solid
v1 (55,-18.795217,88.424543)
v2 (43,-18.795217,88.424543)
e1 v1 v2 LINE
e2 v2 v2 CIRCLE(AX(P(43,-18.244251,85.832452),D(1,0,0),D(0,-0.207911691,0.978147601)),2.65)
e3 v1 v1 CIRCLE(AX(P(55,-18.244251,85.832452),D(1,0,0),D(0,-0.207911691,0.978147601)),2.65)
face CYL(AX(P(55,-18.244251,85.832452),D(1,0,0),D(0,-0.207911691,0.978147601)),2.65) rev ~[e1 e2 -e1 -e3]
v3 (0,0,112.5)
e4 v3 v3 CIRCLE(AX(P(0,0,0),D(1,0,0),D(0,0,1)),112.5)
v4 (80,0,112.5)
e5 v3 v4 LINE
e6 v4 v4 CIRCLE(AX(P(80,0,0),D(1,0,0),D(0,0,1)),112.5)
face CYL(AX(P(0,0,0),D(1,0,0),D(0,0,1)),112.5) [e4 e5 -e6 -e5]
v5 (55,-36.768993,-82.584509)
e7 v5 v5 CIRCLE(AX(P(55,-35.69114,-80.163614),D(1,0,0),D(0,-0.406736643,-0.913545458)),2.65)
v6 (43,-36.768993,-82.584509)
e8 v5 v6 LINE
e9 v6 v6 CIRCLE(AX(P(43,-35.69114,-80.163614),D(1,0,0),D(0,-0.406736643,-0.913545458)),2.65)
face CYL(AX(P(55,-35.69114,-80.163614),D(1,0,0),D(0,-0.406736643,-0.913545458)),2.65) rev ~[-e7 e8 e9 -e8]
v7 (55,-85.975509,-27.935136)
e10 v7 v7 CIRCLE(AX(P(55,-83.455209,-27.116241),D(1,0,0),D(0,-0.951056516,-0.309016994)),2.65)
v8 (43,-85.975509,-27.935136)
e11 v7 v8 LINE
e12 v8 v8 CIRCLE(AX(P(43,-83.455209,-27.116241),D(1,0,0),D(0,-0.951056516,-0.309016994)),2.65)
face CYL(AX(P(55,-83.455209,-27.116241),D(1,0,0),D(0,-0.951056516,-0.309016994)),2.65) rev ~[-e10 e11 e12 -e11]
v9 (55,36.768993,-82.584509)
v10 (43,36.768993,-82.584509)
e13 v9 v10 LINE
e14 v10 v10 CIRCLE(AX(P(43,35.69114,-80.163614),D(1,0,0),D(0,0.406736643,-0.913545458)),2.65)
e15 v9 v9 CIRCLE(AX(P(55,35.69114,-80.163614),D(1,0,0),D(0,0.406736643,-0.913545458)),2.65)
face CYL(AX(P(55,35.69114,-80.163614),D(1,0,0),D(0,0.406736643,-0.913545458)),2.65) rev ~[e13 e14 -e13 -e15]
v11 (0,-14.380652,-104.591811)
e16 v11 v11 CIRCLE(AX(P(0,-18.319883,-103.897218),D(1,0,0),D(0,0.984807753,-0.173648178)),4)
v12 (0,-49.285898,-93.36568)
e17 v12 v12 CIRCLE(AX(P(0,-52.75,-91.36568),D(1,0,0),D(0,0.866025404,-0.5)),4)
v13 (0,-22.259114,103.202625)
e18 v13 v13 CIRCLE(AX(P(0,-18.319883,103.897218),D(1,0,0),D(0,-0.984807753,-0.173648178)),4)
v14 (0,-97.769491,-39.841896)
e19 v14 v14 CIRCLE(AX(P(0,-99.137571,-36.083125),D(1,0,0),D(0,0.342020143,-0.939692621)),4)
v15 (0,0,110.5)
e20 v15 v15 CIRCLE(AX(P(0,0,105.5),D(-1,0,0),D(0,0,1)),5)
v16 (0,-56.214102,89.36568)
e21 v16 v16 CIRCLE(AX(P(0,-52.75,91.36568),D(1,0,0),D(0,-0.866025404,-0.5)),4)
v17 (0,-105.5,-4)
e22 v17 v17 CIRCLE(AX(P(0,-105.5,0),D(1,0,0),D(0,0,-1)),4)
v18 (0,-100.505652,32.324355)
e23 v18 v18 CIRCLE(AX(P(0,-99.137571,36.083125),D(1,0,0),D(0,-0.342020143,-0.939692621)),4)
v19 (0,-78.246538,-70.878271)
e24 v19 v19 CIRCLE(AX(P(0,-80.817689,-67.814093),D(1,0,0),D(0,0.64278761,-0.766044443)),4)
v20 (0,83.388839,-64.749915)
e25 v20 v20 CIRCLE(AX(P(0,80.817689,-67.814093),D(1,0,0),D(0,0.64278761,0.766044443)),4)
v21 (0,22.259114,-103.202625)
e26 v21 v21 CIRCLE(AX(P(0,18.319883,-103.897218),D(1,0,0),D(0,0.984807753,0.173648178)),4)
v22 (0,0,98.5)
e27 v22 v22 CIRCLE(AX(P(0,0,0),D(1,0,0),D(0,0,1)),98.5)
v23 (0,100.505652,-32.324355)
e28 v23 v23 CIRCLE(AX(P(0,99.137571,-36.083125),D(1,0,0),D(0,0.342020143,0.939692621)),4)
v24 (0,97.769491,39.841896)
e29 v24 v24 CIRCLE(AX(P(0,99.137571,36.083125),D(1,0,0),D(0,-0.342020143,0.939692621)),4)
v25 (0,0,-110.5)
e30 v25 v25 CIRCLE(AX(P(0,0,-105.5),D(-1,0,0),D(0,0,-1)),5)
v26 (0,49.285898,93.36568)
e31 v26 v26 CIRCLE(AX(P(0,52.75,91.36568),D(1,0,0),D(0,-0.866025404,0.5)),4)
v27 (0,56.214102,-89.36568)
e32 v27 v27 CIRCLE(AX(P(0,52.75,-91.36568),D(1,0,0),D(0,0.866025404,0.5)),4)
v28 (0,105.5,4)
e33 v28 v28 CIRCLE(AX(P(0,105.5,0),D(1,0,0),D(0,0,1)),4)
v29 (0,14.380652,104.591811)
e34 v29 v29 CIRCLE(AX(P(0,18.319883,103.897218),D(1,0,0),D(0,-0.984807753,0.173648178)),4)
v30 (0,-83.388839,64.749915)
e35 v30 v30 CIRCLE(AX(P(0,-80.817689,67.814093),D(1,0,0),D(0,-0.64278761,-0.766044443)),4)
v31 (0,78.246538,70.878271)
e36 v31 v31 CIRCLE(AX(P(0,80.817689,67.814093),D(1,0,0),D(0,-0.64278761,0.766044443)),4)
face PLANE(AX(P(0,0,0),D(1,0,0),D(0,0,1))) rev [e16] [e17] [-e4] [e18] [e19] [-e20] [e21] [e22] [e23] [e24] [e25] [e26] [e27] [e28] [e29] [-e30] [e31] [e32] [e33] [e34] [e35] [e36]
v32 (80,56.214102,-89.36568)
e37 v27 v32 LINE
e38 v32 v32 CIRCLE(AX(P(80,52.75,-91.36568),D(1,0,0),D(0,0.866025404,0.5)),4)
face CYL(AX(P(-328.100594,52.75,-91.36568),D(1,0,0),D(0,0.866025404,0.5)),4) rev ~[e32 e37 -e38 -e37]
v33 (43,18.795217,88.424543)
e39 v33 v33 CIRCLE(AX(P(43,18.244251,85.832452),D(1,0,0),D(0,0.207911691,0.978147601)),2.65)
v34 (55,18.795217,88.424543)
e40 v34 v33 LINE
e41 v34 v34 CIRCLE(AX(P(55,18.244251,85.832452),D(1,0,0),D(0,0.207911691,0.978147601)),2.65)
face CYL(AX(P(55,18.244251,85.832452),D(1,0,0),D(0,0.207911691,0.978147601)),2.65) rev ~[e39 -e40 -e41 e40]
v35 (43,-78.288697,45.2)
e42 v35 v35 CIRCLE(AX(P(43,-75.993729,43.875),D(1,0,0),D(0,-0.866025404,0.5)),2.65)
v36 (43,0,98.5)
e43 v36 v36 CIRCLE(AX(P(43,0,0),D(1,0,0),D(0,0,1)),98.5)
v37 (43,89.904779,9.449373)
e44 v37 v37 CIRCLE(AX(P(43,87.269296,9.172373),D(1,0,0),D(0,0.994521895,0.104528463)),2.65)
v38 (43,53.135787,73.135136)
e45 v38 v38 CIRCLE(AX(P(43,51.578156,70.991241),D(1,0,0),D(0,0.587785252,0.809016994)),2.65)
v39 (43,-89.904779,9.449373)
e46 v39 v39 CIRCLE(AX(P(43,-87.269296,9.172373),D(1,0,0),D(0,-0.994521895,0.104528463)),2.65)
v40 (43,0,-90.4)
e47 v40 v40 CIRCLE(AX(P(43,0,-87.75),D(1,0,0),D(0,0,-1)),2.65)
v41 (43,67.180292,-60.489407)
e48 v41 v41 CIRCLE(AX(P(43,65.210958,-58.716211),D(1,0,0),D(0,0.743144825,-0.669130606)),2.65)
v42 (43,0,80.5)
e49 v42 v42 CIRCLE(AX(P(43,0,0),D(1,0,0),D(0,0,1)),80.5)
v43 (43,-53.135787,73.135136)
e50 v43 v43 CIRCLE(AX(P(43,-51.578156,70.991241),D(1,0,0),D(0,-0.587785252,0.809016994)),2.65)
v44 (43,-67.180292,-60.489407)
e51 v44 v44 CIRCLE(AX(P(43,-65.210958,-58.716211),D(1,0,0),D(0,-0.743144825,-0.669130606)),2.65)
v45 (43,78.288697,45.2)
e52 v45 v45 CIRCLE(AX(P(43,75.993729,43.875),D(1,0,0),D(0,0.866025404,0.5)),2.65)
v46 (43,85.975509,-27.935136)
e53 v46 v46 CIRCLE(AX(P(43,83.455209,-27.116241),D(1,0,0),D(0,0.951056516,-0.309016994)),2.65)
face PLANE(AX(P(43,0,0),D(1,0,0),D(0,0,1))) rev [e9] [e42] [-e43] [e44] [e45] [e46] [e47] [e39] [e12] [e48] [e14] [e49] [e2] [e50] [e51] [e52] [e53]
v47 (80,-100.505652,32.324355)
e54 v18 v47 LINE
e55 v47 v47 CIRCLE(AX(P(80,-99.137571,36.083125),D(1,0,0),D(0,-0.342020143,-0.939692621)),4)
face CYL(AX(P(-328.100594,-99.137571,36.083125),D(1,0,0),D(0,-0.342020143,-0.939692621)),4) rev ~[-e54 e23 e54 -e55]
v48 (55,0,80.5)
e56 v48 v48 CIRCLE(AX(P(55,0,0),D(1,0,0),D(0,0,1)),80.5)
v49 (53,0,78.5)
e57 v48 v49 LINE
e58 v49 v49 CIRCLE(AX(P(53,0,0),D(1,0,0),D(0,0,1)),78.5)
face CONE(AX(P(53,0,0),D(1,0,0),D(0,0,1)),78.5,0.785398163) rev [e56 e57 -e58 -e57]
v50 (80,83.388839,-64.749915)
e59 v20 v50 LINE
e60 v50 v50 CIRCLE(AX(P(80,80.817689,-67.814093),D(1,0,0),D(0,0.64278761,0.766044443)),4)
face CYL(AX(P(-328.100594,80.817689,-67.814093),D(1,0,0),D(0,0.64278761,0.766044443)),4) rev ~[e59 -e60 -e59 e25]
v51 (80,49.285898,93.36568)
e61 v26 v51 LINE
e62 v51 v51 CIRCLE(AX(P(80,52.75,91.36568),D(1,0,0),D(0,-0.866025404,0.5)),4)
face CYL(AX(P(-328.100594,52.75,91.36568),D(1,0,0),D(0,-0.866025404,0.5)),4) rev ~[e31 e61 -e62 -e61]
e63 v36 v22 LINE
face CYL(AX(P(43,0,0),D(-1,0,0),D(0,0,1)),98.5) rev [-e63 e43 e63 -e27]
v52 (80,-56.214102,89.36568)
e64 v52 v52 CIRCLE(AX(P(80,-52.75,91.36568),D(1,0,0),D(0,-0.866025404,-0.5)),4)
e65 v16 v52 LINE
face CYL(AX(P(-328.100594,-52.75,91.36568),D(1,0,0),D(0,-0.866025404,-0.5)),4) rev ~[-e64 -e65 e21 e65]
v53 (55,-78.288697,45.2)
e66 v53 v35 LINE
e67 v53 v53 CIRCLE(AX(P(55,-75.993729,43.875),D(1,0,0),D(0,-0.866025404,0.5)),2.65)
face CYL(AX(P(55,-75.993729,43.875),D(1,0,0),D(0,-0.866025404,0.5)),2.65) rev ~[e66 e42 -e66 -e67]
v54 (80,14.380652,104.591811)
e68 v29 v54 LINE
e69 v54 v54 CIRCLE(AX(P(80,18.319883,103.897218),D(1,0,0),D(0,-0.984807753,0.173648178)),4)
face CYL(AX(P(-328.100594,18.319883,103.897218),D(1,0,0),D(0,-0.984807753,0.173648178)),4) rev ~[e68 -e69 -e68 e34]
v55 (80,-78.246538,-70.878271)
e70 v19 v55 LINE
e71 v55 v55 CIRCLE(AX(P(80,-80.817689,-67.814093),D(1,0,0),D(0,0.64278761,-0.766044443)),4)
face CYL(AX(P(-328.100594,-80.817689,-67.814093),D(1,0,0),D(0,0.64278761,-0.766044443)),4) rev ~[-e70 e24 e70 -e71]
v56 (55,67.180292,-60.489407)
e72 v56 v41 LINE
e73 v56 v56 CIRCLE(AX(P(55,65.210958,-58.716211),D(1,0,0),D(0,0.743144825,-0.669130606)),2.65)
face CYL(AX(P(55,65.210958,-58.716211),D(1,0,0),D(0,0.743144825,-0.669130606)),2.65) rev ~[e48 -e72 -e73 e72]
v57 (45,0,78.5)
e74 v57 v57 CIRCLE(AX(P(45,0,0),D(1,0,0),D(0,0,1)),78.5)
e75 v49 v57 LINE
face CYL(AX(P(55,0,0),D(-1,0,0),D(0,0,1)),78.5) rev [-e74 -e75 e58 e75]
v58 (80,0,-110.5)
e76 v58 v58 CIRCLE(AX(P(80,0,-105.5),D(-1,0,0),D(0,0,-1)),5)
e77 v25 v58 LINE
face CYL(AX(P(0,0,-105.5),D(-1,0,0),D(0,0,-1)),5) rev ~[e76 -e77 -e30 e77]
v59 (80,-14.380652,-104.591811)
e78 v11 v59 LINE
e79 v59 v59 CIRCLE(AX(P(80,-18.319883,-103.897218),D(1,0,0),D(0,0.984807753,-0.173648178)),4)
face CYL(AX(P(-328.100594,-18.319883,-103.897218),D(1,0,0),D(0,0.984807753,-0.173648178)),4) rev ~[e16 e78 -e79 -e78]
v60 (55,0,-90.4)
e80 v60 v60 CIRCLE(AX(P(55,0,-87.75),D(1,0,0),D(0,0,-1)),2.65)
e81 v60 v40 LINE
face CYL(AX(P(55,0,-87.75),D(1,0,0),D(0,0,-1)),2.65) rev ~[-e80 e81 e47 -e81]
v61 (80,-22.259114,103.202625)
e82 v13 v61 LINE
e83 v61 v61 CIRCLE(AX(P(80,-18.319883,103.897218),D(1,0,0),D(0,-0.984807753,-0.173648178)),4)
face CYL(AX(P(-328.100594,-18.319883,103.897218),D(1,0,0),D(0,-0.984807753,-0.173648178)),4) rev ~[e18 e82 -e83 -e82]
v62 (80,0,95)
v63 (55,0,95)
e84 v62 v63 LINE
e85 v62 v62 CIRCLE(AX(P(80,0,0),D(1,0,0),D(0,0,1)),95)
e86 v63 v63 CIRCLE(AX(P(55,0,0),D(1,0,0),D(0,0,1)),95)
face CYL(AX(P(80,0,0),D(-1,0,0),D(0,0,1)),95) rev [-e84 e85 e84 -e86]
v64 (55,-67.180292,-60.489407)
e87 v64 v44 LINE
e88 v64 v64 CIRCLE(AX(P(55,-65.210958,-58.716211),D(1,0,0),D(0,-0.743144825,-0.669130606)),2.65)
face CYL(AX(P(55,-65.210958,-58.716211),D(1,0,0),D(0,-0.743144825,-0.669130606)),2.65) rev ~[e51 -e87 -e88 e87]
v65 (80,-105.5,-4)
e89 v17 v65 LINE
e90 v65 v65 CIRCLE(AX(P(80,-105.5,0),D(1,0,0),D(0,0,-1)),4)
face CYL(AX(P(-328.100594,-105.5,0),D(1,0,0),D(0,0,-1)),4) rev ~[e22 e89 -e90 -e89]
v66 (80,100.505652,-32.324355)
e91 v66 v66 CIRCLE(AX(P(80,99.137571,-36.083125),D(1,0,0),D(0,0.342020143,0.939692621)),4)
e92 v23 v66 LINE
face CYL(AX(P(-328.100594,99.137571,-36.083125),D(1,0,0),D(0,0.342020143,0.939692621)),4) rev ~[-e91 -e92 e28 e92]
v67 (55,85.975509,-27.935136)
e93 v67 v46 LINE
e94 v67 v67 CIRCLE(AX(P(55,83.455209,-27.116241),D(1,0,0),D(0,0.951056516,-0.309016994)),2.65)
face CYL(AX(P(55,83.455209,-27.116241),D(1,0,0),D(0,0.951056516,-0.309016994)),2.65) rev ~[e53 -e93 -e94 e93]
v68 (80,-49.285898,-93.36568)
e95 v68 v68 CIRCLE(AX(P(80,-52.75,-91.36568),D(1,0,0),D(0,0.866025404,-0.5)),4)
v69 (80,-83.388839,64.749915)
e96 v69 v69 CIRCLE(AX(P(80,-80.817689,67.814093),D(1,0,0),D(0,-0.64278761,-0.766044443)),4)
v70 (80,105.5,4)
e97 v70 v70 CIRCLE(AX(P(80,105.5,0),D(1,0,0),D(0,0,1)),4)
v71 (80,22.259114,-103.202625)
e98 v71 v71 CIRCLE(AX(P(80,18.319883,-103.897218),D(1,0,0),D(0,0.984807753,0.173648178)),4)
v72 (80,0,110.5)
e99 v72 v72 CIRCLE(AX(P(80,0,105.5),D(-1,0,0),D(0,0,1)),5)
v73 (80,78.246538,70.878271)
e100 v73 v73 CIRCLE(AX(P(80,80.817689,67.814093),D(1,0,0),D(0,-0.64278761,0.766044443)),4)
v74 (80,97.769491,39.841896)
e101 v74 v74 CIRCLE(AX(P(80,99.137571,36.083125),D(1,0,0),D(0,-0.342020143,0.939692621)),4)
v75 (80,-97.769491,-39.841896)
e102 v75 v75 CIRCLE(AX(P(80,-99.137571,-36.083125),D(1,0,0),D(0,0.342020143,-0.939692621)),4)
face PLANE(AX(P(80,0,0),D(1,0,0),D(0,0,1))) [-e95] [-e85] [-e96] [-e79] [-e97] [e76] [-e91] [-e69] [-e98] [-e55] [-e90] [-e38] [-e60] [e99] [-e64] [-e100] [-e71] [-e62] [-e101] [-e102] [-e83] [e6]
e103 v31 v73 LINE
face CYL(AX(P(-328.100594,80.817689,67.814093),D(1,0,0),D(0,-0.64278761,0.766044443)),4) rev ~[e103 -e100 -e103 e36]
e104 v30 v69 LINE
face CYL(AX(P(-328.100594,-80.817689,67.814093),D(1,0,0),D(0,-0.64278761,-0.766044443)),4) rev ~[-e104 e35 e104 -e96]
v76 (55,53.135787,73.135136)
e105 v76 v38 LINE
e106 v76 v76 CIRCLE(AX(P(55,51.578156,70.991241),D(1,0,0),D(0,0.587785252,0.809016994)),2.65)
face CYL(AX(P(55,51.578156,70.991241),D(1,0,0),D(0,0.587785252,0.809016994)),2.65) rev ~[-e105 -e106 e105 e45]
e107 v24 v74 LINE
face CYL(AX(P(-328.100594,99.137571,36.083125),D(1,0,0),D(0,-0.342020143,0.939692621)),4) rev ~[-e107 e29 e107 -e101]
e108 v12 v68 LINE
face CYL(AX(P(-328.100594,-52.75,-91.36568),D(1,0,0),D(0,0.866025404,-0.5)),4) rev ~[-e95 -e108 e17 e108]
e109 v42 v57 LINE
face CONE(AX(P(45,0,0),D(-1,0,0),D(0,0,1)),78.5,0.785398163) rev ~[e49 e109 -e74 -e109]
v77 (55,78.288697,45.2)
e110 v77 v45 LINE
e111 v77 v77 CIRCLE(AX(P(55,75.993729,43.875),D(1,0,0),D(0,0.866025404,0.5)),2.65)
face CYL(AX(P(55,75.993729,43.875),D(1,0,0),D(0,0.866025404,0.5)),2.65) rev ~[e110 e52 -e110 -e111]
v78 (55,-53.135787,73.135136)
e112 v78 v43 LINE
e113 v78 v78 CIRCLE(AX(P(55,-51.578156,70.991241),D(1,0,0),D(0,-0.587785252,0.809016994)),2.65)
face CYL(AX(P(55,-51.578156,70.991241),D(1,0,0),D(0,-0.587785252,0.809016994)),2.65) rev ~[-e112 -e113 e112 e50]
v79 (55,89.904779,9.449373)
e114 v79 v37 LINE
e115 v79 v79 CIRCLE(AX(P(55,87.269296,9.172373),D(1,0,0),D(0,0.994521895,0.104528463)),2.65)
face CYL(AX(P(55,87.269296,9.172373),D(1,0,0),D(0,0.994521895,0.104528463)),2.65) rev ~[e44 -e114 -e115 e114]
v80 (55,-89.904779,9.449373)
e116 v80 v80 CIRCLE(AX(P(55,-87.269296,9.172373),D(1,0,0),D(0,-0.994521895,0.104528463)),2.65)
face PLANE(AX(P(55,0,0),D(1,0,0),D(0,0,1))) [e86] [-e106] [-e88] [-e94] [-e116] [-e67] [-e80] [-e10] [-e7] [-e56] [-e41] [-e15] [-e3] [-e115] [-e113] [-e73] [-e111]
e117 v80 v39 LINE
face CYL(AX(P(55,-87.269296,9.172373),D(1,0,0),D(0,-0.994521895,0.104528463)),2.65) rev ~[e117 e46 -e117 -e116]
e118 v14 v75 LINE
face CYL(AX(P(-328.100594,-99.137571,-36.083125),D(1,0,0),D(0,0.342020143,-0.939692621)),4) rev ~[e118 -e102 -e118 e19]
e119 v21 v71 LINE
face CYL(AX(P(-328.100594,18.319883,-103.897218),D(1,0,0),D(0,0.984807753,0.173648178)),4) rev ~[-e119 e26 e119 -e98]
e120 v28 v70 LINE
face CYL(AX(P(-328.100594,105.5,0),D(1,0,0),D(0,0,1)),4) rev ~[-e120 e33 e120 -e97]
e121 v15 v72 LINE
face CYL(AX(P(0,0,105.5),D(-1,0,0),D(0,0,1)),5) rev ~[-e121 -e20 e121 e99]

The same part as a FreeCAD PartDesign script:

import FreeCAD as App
import Part
import Sketcher
from FreeCAD import Vector
Q = App.Units.Quantity


def edges_at(feature, points):
    """Names of the edges that pass closest to the given points."""
    edges = feature.Shape.Edges
    near = lambda p: min(range(len(edges)), key=lambda i: edges[i].distToShape(Part.Vertex(*p))[0])
    return sorted({f"Edge{near(p) + 1}" for p in points})


def add_polygon(sketch, points):
    """Adds a closed chain of lines whose ends are joined by coincident constraints."""
    first, n = sketch.GeometryCount, len(points)
    for a, b in zip(points, points[1:] + points[:1]):
        sketch.addGeometry(Part.LineSegment(App.Vector(*a, 0), App.Vector(*b, 0)), False)
    for i in range(n):
        sketch.addConstraint(Sketcher.Constraint("Coincident", first + i, 2, first + (i + 1) % n, 1))

doc = App.newDocument("Part")
params = doc.addObject("Spreadsheet::Sheet", "Params")
for row, (alias, value) in enumerate([
    ("sketch1_width", "80 mm"),
    ("sketch1_width2", "43 mm"),
    ("sketch1_width3", "12 mm"),
    ("sketch1_height", "14 mm"),
    ("sketch1_height2", "20 mm"),
    ("revolution_angle", "360 deg"),
    ("sketch2_diameter", "8 mm"),
    ("hole_diameter", "8 mm"),
    ("sketch3_diameter", "10 mm"),
    ("sketch4_diameter", "5.3 mm"),
    ("chamfer_size", "2 mm"),
], start=1):
    params.set(f"A{row}", alias)
    params.set(f"B{row}", "=" + value)
    params.setAlias(f"B{row}", alias)

body = doc.addObject("PartDesign::Body", "Body")

# Sketch on XY plane
sketch1 = body.newObject("Sketcher::SketchObject", "Sketch")
sketch1.AttachmentSupport = (doc.getObject("XY_Plane"), [""])
sketch1.MapMode = "FlatFace"
add_polygon(sketch1, [(80, 112.5), (0, 112.5), (0, 98.5), (43, 98.5), (43, 78.5), (55, 78.5), (55, 95), (80, 95)])  # lines 0-7
sketch1.addConstraint([
    Sketcher.Constraint("Horizontal", 0),
    Sketcher.Constraint("Vertical", 1),
    Sketcher.Constraint("Horizontal", 2),
    Sketcher.Constraint("Vertical", 3),
    Sketcher.Constraint("Horizontal", 4),
    Sketcher.Constraint("Vertical", 5),
    Sketcher.Constraint("Horizontal", 6),
    Sketcher.Constraint("Vertical", 7),
    Sketcher.Constraint("PointOnObject", 0, 2, -2),
    Sketcher.Constraint("DistanceX", 0, 2, 0, 1, Q("80 mm")),
    Sketcher.Constraint("DistanceX", 2, 1, 2, 2, Q("43 mm")),
    Sketcher.Constraint("DistanceX", 4, 1, 4, 2, Q("12 mm")),
    Sketcher.Constraint("DistanceY", 1, 2, 1, 1, Q("14 mm")),
    Sketcher.Constraint("DistanceY", 3, 2, 3, 1, Q("20 mm")),
    Sketcher.Constraint("DistanceY", 5, 1, 5, 2, Q("16.5 mm")),
    Sketcher.Constraint("DistanceY", -1, 1, 5, 2, Q("95 mm")),
])
sketch1.setExpression("Constraints[17]", "Params.sketch1_width")
sketch1.setExpression("Constraints[18]", "Params.sketch1_width2")
sketch1.setExpression("Constraints[19]", "Params.sketch1_width3")
sketch1.setExpression("Constraints[20]", "Params.sketch1_height")
sketch1.setExpression("Constraints[21]", "Params.sketch1_height2")
revolution = body.newObject("PartDesign::Revolution", "Revolution")
revolution.Profile = sketch1
revolution.ReferenceAxis = (sketch1, ["H_Axis"])
revolution.setExpression("Angle", "Params.revolution_angle")

# Sketch on YZ plane
sketch2 = body.newObject("Sketcher::SketchObject", "Sketch001")
sketch2.AttachmentSupport = (doc.getObject("YZ_Plane"), [""])
sketch2.MapMode = "FlatFace"
sketch2.addGeometry(Part.Circle(Vector(105.5, 0, 0), Vector(0, 0, 1), 4), False)
sketch2.addConstraint([
    Sketcher.Constraint("PointOnObject", 0, 3, -1),
    Sketcher.Constraint("Diameter", 0, Q("8 mm")),
    Sketcher.Constraint("DistanceX", -1, 1, 0, 3, Q("105.5 mm")),
])
sketch2.setExpression("Constraints[1]", "Params.sketch2_diameter")
doc.recompute()
hole = body.newObject("PartDesign::Hole", "Hole")
hole.Profile = sketch2
hole.ThreadType = "None"
hole.setExpression("Diameter", "Params.hole_diameter")
hole.DepthType = "ThroughAll"
hole.Reversed = True
doc.recompute()

polarpattern = body.newObject("PartDesign::PolarPattern", "PolarPattern")
polarpattern.Originals = [hole]
polarpattern.Axis = (doc.getObject("X_Axis"), [""])
polarpattern.Angle = 360
polarpattern.Occurrences = 18
body.Tip = polarpattern

# Sketch on YZ plane
sketch3 = body.newObject("Sketcher::SketchObject", "Sketch002")
sketch3.AttachmentSupport = (doc.getObject("YZ_Plane"), [""])
sketch3.MapMode = "FlatFace"
sketch3.addGeometry([
    Part.Circle(Vector(0, 105.5, 0), Vector(0, 0, 1), 5),
    Part.Circle(Vector(0, -105.5, 0), Vector(0, 0, 1), 5),
], False)
sketch3.addConstraint([
    Sketcher.Constraint("Equal", 0, 1),
    Sketcher.Constraint("Symmetric", 0, 3, 1, 3, -1, 1),
    Sketcher.Constraint("PointOnObject", 0, 3, -2),
    Sketcher.Constraint("Diameter", 0, Q("10 mm")),
    Sketcher.Constraint("DistanceY", 1, 3, 0, 3, Q("211 mm")),
])
sketch3.setExpression("Constraints[3]", "Params.sketch3_diameter")
pocket1 = body.newObject("PartDesign::Pocket", "Pocket")
pocket1.Profile = sketch3
pocket1.Type = "ThroughAll"
pocket1.Reversed = True

# Sketch on YZ plane
sketch4 = body.newObject("Sketcher::SketchObject", "Sketch003")
sketch4.AttachmentSupport = (doc.getObject("YZ_Plane"), [""])
sketch4.MapMode = "FlatFace"
sketch4.AttachmentOffset = App.Placement(Vector(0, 0, 55), App.Rotation())
sketch4.addGeometry(Part.Circle(Vector(0, -87.75, 0), Vector(0, 0, 1), 2.65), False)
sketch4.addConstraint([
    Sketcher.Constraint("PointOnObject", 0, 3, -2),
    Sketcher.Constraint("Diameter", 0, Q("5.3 mm")),
    Sketcher.Constraint("DistanceY", 0, 3, -1, 1, Q("87.75 mm")),
])
sketch4.setExpression("Constraints[1]", "Params.sketch4_diameter")
pocket2 = body.newObject("PartDesign::Pocket", "Pocket001")
pocket2.Profile = sketch4
pocket2.Type = "ThroughAll"
doc.recompute()

polarpattern2 = body.newObject("PartDesign::PolarPattern", "PolarPattern001")
polarpattern2.Originals = [pocket2]
polarpattern2.Axis = (doc.getObject("X_Axis"), [""])
polarpattern2.Angle = 360
polarpattern2.Occurrences = 15
body.Tip = polarpattern2
doc.recompute()

chamfer = body.newObject("PartDesign::Chamfer", "Chamfer")
chamfer.Base = (polarpattern2, edges_at(polarpattern2, [(43, 0, -78.5), (55, 0, -78.5)]))
chamfer.setExpression("Size", "Params.chamfer_size")

doc.recompute()
